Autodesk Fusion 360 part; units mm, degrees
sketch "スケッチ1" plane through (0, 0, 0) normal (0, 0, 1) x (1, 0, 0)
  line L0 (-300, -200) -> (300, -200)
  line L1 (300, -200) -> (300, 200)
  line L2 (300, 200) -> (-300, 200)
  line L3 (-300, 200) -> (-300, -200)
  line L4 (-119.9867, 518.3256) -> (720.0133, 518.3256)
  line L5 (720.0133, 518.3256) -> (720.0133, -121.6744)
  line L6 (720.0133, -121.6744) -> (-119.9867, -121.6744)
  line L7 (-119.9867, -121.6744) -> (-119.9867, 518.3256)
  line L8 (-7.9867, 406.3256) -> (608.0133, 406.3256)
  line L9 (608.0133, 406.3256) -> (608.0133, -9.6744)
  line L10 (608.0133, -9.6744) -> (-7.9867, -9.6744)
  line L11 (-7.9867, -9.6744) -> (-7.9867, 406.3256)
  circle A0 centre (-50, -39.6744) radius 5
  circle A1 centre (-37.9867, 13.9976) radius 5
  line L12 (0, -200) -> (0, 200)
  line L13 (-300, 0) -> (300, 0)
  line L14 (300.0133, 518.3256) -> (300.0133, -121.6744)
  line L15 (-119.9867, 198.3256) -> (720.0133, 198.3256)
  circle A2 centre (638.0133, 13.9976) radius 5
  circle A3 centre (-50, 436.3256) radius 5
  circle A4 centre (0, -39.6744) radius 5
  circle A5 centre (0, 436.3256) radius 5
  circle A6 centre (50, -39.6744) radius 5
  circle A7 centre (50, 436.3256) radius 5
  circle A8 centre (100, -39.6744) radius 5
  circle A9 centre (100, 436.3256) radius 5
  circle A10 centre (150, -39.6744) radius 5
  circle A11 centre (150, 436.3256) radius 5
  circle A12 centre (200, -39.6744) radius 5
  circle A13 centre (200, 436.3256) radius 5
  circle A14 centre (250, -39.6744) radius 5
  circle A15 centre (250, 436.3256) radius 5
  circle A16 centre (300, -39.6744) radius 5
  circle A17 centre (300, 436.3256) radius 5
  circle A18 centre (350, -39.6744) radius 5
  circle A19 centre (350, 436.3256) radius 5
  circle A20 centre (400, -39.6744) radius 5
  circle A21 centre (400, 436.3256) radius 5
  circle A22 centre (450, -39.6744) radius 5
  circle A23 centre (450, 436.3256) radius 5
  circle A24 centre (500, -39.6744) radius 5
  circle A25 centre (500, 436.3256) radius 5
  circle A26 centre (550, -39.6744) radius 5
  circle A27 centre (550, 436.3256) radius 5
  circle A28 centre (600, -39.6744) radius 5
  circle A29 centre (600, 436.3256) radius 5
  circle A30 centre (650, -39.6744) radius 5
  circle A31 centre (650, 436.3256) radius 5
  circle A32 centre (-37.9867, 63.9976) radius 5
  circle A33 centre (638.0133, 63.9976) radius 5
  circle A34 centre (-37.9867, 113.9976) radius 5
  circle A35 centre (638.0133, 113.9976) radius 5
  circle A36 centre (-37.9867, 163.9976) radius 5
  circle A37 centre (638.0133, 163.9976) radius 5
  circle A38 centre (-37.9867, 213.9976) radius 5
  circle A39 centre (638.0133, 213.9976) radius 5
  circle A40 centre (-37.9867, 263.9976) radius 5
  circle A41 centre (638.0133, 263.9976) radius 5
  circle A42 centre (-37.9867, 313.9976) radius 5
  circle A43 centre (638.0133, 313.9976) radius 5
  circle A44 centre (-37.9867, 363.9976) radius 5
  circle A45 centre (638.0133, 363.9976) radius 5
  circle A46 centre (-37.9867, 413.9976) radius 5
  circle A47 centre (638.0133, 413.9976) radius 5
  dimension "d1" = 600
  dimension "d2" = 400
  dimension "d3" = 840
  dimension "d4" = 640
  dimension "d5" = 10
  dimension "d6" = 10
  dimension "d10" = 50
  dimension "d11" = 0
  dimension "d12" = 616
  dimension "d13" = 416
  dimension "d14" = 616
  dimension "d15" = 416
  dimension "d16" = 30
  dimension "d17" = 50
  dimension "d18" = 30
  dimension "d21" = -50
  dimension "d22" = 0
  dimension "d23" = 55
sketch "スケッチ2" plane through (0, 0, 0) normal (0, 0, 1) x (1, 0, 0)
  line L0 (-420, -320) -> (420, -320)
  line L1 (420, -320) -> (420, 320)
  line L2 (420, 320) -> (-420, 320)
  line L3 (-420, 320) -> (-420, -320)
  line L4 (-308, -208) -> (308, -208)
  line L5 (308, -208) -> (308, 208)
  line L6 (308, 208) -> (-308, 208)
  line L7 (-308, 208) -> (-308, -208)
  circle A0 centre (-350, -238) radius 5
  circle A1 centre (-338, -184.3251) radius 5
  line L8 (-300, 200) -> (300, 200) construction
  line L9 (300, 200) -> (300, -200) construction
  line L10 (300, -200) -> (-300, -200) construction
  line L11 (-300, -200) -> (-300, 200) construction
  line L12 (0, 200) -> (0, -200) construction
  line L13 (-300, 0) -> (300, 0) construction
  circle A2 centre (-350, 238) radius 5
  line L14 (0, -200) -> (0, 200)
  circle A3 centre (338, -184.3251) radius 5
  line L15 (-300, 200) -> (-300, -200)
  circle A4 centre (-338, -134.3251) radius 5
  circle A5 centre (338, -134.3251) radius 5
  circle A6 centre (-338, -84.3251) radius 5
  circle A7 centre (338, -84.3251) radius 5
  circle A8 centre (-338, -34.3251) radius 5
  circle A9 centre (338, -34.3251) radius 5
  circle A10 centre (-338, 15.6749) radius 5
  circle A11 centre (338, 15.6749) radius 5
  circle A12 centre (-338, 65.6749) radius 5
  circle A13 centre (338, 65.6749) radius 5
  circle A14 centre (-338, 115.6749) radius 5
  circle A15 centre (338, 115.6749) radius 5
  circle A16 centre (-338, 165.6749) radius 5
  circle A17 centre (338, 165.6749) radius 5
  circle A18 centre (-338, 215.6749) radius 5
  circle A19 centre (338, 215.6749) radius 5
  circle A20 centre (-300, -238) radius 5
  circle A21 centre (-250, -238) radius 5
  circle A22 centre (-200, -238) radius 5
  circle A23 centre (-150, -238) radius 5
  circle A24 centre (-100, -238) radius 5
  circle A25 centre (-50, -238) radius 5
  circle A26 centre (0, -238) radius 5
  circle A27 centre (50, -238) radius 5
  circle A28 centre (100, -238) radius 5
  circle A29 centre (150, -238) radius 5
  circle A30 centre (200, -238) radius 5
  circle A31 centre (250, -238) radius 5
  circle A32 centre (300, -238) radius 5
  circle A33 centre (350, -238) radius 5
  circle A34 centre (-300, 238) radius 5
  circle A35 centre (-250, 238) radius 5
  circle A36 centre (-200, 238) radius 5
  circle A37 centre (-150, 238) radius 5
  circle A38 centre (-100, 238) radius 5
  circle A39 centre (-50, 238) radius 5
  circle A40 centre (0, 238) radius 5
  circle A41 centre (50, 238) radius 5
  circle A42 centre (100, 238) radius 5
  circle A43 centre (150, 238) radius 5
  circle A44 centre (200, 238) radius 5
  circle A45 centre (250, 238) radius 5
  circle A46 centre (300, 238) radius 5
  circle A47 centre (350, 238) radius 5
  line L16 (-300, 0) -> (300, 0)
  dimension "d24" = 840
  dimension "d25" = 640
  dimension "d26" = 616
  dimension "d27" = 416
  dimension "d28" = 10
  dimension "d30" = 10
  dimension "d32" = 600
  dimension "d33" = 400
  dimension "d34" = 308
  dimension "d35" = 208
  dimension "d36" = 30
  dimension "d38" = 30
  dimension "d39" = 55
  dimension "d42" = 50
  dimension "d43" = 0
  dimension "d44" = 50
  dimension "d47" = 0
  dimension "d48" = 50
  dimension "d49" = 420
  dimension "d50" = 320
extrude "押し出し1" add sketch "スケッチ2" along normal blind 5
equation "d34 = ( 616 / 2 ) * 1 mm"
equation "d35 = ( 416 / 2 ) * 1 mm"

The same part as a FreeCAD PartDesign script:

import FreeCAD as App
import Part
import Sketcher

V = App.Vector


def add_polygon(sketch, points):
    """Adds a closed chain of lines whose ends are joined by coincident constraints."""
    first, n = sketch.GeometryCount, len(points)
    for a, b in zip(points, points[1:] + points[:1]):
        sketch.addGeometry(Part.LineSegment(App.Vector(*a, 0), App.Vector(*b, 0)), False)
    for i in range(n):
        sketch.addConstraint(Sketcher.Constraint("Coincident", first + i, 2, first + (i + 1) % n, 1))

doc = App.newDocument("Part")
body = doc.addObject("PartDesign::Body", "Body")

sketch1 = body.newObject("Sketcher::SketchObject", "Sketch")
sketch1.AttachmentSupport = (doc.getObject("XY_Plane"), [""])
sketch1.MapMode = "FlatFace"
add_polygon(sketch1, [(-420, 320), (-420, -320), (420, -320), (420, 320)])
sketch1.addGeometry(Part.Circle(V(-350, -238, 0), V(0, 0, 1), 5), False)
sketch1.addGeometry(Part.Circle(V(-338, -184, 0), V(0, 0, 1), 5), False)
sketch1.addGeometry(Part.Circle(V(-300, -238, 0), V(0, 0, 1), 5), False)
sketch1.addGeometry(Part.Circle(V(-250, -238, 0), V(0, 0, 1), 5), False)
sketch1.addGeometry(Part.Circle(V(-200, -238, 0), V(0, 0, 1), 5), False)
sketch1.addGeometry(Part.Circle(V(-150, -238, 0), V(0, 0, 1), 5), False)
sketch1.addGeometry(Part.Circle(V(-100, -238, 0), V(0, 0, 1), 5), False)
sketch1.addGeometry(Part.Circle(V(-50, -238, 0), V(0, 0, 1), 5), False)
sketch1.addGeometry(Part.Circle(V(-338, -134, 0), V(0, 0, 1), 5), False)
sketch1.addGeometry(Part.Circle(V(-338, -84, 0), V(0, 0, 1), 5), False)
sketch1.addGeometry(Part.Circle(V(-338, -34, 0), V(0, 0, 1), 5), False)
sketch1.addGeometry(Part.Circle(V(0, -238, 0), V(0, 0, 1), 5), False)
sketch1.addGeometry(Part.Circle(V(50, -238, 0), V(0, 0, 1), 5), False)
sketch1.addGeometry(Part.Circle(V(100, -238, 0), V(0, 0, 1), 5), False)
sketch1.addGeometry(Part.Circle(V(150, -238, 0), V(0, 0, 1), 5), False)
sketch1.addGeometry(Part.Circle(V(200, -238, 0), V(0, 0, 1), 5), False)
sketch1.addGeometry(Part.Circle(V(250, -238, 0), V(0, 0, 1), 5), False)
sketch1.addGeometry(Part.Circle(V(300, -238, 0), V(0, 0, 1), 5), False)
sketch1.addGeometry(Part.Circle(V(350, -238, 0), V(0, 0, 1), 5), False)
sketch1.addGeometry(Part.Circle(V(338, -184, 0), V(0, 0, 1), 5), False)
sketch1.addGeometry(Part.Circle(V(338, -134, 0), V(0, 0, 1), 5), False)
sketch1.addGeometry(Part.Circle(V(338, -84, 0), V(0, 0, 1), 5), False)
sketch1.addGeometry(Part.Circle(V(338, -34, 0), V(0, 0, 1), 5), False)
sketch1.addGeometry(Part.Circle(V(-338, 16, 0), V(0, 0, 1), 5), False)
sketch1.addGeometry(Part.Circle(V(-338, 66, 0), V(0, 0, 1), 5), False)
sketch1.addGeometry(Part.Circle(V(-338, 116, 0), V(0, 0, 1), 5), False)
sketch1.addGeometry(Part.Circle(V(-338, 166, 0), V(0, 0, 1), 5), False)
sketch1.addGeometry(Part.Circle(V(-338, 216, 0), V(0, 0, 1), 5), False)
sketch1.addGeometry(Part.Circle(V(-350, 238, 0), V(0, 0, 1), 5), False)
sketch1.addGeometry(Part.Circle(V(-300, 238, 0), V(0, 0, 1), 5), False)
sketch1.addGeometry(Part.Circle(V(-250, 238, 0), V(0, 0, 1), 5), False)
sketch1.addGeometry(Part.Circle(V(-200, 238, 0), V(0, 0, 1), 5), False)
sketch1.addGeometry(Part.Circle(V(-150, 238, 0), V(0, 0, 1), 5), False)
sketch1.addGeometry(Part.Circle(V(-100, 238, 0), V(0, 0, 1), 5), False)
sketch1.addGeometry(Part.Circle(V(-50, 238, 0), V(0, 0, 1), 5), False)
add_polygon(sketch1, [(308, -208), (-308, -208), (-308, 208), (308, 208)])
sketch1.addGeometry(Part.Circle(V(338, 16, 0), V(0, 0, 1), 5), False)
sketch1.addGeometry(Part.Circle(V(338, 66, 0), V(0, 0, 1), 5), False)
sketch1.addGeometry(Part.Circle(V(338, 116, 0), V(0, 0, 1), 5), False)
sketch1.addGeometry(Part.Circle(V(0, 238, 0), V(0, 0, 1), 5), False)
sketch1.addGeometry(Part.Circle(V(50, 238, 0), V(0, 0, 1), 5), False)
sketch1.addGeometry(Part.Circle(V(100, 238, 0), V(0, 0, 1), 5), False)
sketch1.addGeometry(Part.Circle(V(150, 238, 0), V(0, 0, 1), 5), False)
sketch1.addGeometry(Part.Circle(V(200, 238, 0), V(0, 0, 1), 5), False)
sketch1.addGeometry(Part.Circle(V(250, 238, 0), V(0, 0, 1), 5), False)
sketch1.addGeometry(Part.Circle(V(300, 238, 0), V(0, 0, 1), 5), False)
sketch1.addGeometry(Part.Circle(V(338, 166, 0), V(0, 0, 1), 5), False)
sketch1.addGeometry(Part.Circle(V(338, 216, 0), V(0, 0, 1), 5), False)
sketch1.addGeometry(Part.Circle(V(350, 238, 0), V(0, 0, 1), 5), False)
sketch1.addConstraint([
    Sketcher.Constraint("Vertical", 0),
    Sketcher.Constraint("Horizontal", 1),
    Sketcher.Constraint("Vertical", 2),
    Sketcher.Constraint("Horizontal", 3),
    Sketcher.Constraint("Horizontal", 39),
    Sketcher.Constraint("Vertical", 40),
    Sketcher.Constraint("Horizontal", 41),
    Sketcher.Constraint("Vertical", 42),
    Sketcher.Constraint("Equal", 4, 5),
    Sketcher.Constraint("Equal", 5, 6),
    Sketcher.Constraint("Equal", 6, 7),
    Sketcher.Constraint("Equal", 7, 8),
    Sketcher.Constraint("Equal", 8, 9),
    Sketcher.Constraint("Equal", 9, 10),
    Sketcher.Constraint("Equal", 10, 11),
    Sketcher.Constraint("Equal", 11, 12),
    Sketcher.Constraint("Equal", 12, 13),
    Sketcher.Constraint("Equal", 13, 14),
    Sketcher.Constraint("Equal", 14, 15),
    Sketcher.Constraint("Equal", 15, 16),
    Sketcher.Constraint("Equal", 16, 17),
    Sketcher.Constraint("Equal", 17, 18),
    Sketcher.Constraint("Equal", 18, 19),
    Sketcher.Constraint("Equal", 19, 20),
    Sketcher.Constraint("Equal", 20, 21),
    Sketcher.Constraint("Equal", 21, 22),
    Sketcher.Constraint("Equal", 22, 23),
    Sketcher.Constraint("Equal", 23, 24),
    Sketcher.Constraint("Equal", 24, 25),
    Sketcher.Constraint("Equal", 25, 26),
    Sketcher.Constraint("Equal", 26, 27),
    Sketcher.Constraint("Equal", 27, 28),
    Sketcher.Constraint("Equal", 28, 29),
    Sketcher.Constraint("Equal", 29, 30),
    Sketcher.Constraint("Equal", 30, 31),
    Sketcher.Constraint("Equal", 31, 32),
    Sketcher.Constraint("Equal", 32, 33),
    Sketcher.Constraint("Equal", 33, 34),
    Sketcher.Constraint("Equal", 34, 35),
    Sketcher.Constraint("Equal", 35, 36),
    Sketcher.Constraint("Equal", 36, 37),
    Sketcher.Constraint("Equal", 37, 38),
    Sketcher.Constraint("Equal", 38, 43),
    Sketcher.Constraint("Equal", 43, 44),
    Sketcher.Constraint("Equal", 44, 45),
    Sketcher.Constraint("Equal", 45, 46),
    Sketcher.Constraint("Equal", 46, 47),
    Sketcher.Constraint("Equal", 47, 48),
    Sketcher.Constraint("Equal", 48, 49),
    Sketcher.Constraint("Equal", 49, 50),
    Sketcher.Constraint("Equal", 50, 51),
    Sketcher.Constraint("Equal", 51, 52),
    Sketcher.Constraint("Equal", 52, 53),
    Sketcher.Constraint("Equal", 53, 54),
    Sketcher.Constraint("Equal", 54, 55),
    Sketcher.Constraint("Symmetric", 22, 3, 32, 3, -1, 1),
    Sketcher.Constraint("Symmetric", 21, 3, 33, 3, -1, 1),
    Sketcher.Constraint("Symmetric", 20, 3, 34, 3, -1, 1),
    Sketcher.Constraint("Symmetric", 19, 3, 35, 3, -1, 1),
    Sketcher.Constraint("Symmetric", 18, 3, 36, 3, -1, 1),
    Sketcher.Constraint("Symmetric", 17, 3, 37, 3, -1, 1),
    Sketcher.Constraint("Symmetric", 16, 3, 38, 3, -1, 1),
    Sketcher.Constraint("Symmetric", 15, 3, 46, 3, -1, 1),
    Sketcher.Constraint("Symmetric", 11, 3, 47, 3, -1, 1),
    Sketcher.Constraint("Symmetric", 10, 3, 48, 3, -1, 1),
    Sketcher.Constraint("Symmetric", 9, 3, 49, 3, -1, 1),
    Sketcher.Constraint("Symmetric", 8, 3, 50, 3, -1, 1),
    Sketcher.Constraint("Symmetric", 7, 3, 51, 3, -1, 1),
    Sketcher.Constraint("Symmetric", 6, 3, 52, 3, -1, 1),
    Sketcher.Constraint("Symmetric", 4, 3, 55, 3, -1, 1),
    Sketcher.Constraint("Symmetric", 0, 2, 2, 2, -1, 1),
    Sketcher.Constraint("Symmetric", 39, 2, 41, 2, -1, 1),
    Sketcher.Constraint("Symmetric", 11, 3, 16, 3, -2),
    Sketcher.Constraint("Symmetric", 10, 3, 17, 3, -2),
    Sketcher.Constraint("Symmetric", 9, 3, 18, 3, -2),
    Sketcher.Constraint("Symmetric", 8, 3, 19, 3, -2),
    Sketcher.Constraint("Symmetric", 7, 3, 20, 3, -2),
    Sketcher.Constraint("Symmetric", 6, 3, 21, 3, -2),
    Sketcher.Constraint("Symmetric", 4, 3, 22, 3, -2),
    Sketcher.Constraint("Symmetric", 5, 3, 23, 3, -2),
    Sketcher.Constraint("Symmetric", 12, 3, 24, 3, -2),
    Sketcher.Constraint("Symmetric", 13, 3, 25, 3, -2),
    Sketcher.Constraint("Symmetric", 14, 3, 26, 3, -2),
    Sketcher.Constraint("Symmetric", 27, 3, 43, 3, -2),
    Sketcher.Constraint("Symmetric", 28, 3, 44, 3, -2),
    Sketcher.Constraint("Symmetric", 29, 3, 45, 3, -2),
    Sketcher.Constraint("Symmetric", 30, 3, 53, 3, -2),
    Sketcher.Constraint("Symmetric", 31, 3, 54, 3, -2),
    Sketcher.Constraint("PointOnObject", 15, 3, -2),
    Sketcher.Constraint("Horizontal", 4, 3, 6, 3),
    Sketcher.Constraint("Horizontal", 6, 3, 7, 3),
    Sketcher.Constraint("Horizontal", 7, 3, 8, 3),
    Sketcher.Constraint("Horizontal", 8, 3, 9, 3),
    Sketcher.Constraint("Horizontal", 9, 3, 10, 3),
    Sketcher.Constraint("Horizontal", 10, 3, 11, 3),
    Sketcher.Constraint("Horizontal", 11, 3, 15, 3),
    Sketcher.Constraint("Vertical", 5, 3, 12, 3),
    Sketcher.Constraint("Vertical", 12, 3, 13, 3),
    Sketcher.Constraint("Vertical", 13, 3, 14, 3),
    Sketcher.Constraint("Vertical", 14, 3, 27, 3),
    Sketcher.Constraint("Vertical", 27, 3, 28, 3),
    Sketcher.Constraint("Vertical", 28, 3, 29, 3),
    Sketcher.Constraint("Vertical", 29, 3, 30, 3),
    Sketcher.Constraint("Vertical", 30, 3, 31, 3),
    Sketcher.Constraint("Diameter", 4, 10.0),
    Sketcher.Constraint("DistanceX", 1, 1, 1, 2, 840.0),
    Sketcher.Constraint("DistanceX", 39, 2, 39, 1, 616.0),
    Sketcher.Constraint("DistanceY", 0, 2, 0, 1, 640.0),
    Sketcher.Constraint("DistanceY", 40, 1, 40, 2, 416.0),
    Sketcher.Constraint("DistanceX", 11, 3, -1, 1, 50.0),
    Sketcher.Constraint("DistanceX", 4, 3, 6, 3, 50.0),
    Sketcher.Constraint("DistanceX", 6, 3, 7, 3, 50.0),
    Sketcher.Constraint("DistanceX", 7, 3, 8, 3, 50.0),
    Sketcher.Constraint("DistanceX", 8, 3, 9, 3, 50.0),
    Sketcher.Constraint("DistanceX", 9, 3, 10, 3, 50.0),
    Sketcher.Constraint("DistanceX", 10, 3, 11, 3, 50.0),
    Sketcher.Constraint("DistanceY", 5, 3, 12, 3, 50.0),
    Sketcher.Constraint("DistanceY", 12, 3, 13, 3, 50.0),
    Sketcher.Constraint("DistanceY", 13, 3, 14, 3, 50.0),
    Sketcher.Constraint("DistanceY", 14, 3, 27, 3, 50.0),
    Sketcher.Constraint("DistanceY", 27, 3, 28, 3, 50.0),
    Sketcher.Constraint("DistanceY", 28, 3, 29, 3, 50.0),
    Sketcher.Constraint("DistanceY", 29, 3, 30, 3, 50.0),
    Sketcher.Constraint("DistanceY", 30, 3, 31, 3, 50.0),
    Sketcher.Constraint("DistanceY", 6, 3, 39, 2, 30.0),
    Sketcher.Constraint("DistanceX", 5, 3, 39, 2, 30.0),
    Sketcher.Constraint("DistanceY", 5, 3, -1, 1, 184.325),
])
pad1 = body.newObject("PartDesign::Pad", "Pad")
pad1.Profile = sketch1
pad1.Length = 5

doc.recompute()
